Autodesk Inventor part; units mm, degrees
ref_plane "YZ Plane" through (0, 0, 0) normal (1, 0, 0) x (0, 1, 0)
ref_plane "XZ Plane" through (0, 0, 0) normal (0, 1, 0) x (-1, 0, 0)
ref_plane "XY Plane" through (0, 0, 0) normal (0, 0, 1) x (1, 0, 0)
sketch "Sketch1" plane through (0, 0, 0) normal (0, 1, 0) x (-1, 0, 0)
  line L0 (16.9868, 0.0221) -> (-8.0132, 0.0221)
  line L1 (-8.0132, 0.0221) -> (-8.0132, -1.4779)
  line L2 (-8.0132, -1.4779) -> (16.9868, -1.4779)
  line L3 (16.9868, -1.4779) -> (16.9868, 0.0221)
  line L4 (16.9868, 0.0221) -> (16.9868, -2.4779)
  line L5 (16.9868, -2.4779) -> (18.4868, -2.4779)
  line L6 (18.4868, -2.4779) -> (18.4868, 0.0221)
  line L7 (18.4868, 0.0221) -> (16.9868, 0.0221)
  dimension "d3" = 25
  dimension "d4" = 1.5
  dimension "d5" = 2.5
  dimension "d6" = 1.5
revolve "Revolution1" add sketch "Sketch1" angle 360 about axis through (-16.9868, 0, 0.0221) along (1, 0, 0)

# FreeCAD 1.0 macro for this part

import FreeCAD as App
import Part
import Sketcher

V = App.Vector
Q = App.Units.Quantity

doc = App.newDocument("Part")
body = doc.addObject("PartDesign::Body", "Body")

# Sketch on XZ plane
sketch1 = body.newObject("Sketcher::SketchObject", "Sketch")
sketch1.AttachmentSupport = (doc.getObject("XZ_Plane"), [""])
sketch1.MapMode = "FlatFace"
sketch1.addGeometry(Part.LineSegment(V(8.0132, -1.4779, 0), V(-16.9868, -1.4779, 0)), False)
sketch1.addGeometry(Part.LineSegment(V(-16.9868, -1.4779, 0), V(-16.9868, -2.4779, 0)), False)
sketch1.addGeometry(Part.LineSegment(V(-16.9868, -2.4779, 0), V(-18.4868, -2.4779, 0)), False)
sketch1.addGeometry(Part.LineSegment(V(-18.4868, -2.4779, 0), V(-18.4868, 0.0221, 0)), False)
sketch1.addGeometry(Part.LineSegment(V(-18.4868, 0.0221, 0), V(8.0132, 0.0221, 0)), False)
sketch1.addGeometry(Part.LineSegment(V(8.0132, 0.0221, 0), V(8.0132, -1.4779, 0)), False)
sketch1.addGeometry(Part.LineSegment(V(-18.4868, 0.0221, 0), V(8.0132, 0.0221, 0)), True)  # axis
sketch1.addConstraint(Sketcher.Constraint("Coincident", 0, 2, 1, 1))
sketch1.addConstraint(Sketcher.Constraint("Coincident", 1, 2, 2, 1))
sketch1.addConstraint(Sketcher.Constraint("Coincident", 2, 2, 3, 1))
sketch1.addConstraint(Sketcher.Constraint("Coincident", 3, 2, 4, 1))
sketch1.addConstraint(Sketcher.Constraint("Coincident", 4, 2, 5, 1))
sketch1.addConstraint(Sketcher.Constraint("Coincident", 5, 2, 0, 1))
sketch1.addConstraint(Sketcher.Constraint("Horizontal", 0))
sketch1.addConstraint(Sketcher.Constraint("Vertical", 1))
sketch1.addConstraint(Sketcher.Constraint("Horizontal", 2))
sketch1.addConstraint(Sketcher.Constraint("Vertical", 3))
sketch1.addConstraint(Sketcher.Constraint("Horizontal", 4))
sketch1.addConstraint(Sketcher.Constraint("Vertical", 5))
sketch1.addConstraint(Sketcher.Constraint("Horizontal", 6))
sketch1.addConstraint(Sketcher.Constraint("Coincident", 6, 1, 3, 2))
sketch1.addConstraint(Sketcher.Constraint("Vertical", 5, 2, 6, 2))
sketch1.addConstraint(Sketcher.Constraint("Equal", 2, 5))
sketch1.addConstraint(Sketcher.Constraint("DistanceX", 0, 2, 0, 1, Q("25 mm")))
sketch1.addConstraint(Sketcher.Constraint("DistanceX", 2, 2, 2, 1, Q("1.5 mm")))
sketch1.addConstraint(Sketcher.Constraint("DistanceY", 3, 1, 3, 2, Q("2.5 mm")))
sketch1.addConstraint(Sketcher.Constraint("DistanceY", 0, 2, -1, 1, Q("1.478 mm")))
sketch1.addConstraint(Sketcher.Constraint("DistanceX", 0, 2, -1, 1, Q("16.9868 mm")))
revolution = body.newObject("PartDesign::Revolution", "Revolution")
revolution.Profile = sketch1
revolution.ReferenceAxis = (sketch1, ["Axis0"])
revolution.Angle = 360

doc.recompute()
